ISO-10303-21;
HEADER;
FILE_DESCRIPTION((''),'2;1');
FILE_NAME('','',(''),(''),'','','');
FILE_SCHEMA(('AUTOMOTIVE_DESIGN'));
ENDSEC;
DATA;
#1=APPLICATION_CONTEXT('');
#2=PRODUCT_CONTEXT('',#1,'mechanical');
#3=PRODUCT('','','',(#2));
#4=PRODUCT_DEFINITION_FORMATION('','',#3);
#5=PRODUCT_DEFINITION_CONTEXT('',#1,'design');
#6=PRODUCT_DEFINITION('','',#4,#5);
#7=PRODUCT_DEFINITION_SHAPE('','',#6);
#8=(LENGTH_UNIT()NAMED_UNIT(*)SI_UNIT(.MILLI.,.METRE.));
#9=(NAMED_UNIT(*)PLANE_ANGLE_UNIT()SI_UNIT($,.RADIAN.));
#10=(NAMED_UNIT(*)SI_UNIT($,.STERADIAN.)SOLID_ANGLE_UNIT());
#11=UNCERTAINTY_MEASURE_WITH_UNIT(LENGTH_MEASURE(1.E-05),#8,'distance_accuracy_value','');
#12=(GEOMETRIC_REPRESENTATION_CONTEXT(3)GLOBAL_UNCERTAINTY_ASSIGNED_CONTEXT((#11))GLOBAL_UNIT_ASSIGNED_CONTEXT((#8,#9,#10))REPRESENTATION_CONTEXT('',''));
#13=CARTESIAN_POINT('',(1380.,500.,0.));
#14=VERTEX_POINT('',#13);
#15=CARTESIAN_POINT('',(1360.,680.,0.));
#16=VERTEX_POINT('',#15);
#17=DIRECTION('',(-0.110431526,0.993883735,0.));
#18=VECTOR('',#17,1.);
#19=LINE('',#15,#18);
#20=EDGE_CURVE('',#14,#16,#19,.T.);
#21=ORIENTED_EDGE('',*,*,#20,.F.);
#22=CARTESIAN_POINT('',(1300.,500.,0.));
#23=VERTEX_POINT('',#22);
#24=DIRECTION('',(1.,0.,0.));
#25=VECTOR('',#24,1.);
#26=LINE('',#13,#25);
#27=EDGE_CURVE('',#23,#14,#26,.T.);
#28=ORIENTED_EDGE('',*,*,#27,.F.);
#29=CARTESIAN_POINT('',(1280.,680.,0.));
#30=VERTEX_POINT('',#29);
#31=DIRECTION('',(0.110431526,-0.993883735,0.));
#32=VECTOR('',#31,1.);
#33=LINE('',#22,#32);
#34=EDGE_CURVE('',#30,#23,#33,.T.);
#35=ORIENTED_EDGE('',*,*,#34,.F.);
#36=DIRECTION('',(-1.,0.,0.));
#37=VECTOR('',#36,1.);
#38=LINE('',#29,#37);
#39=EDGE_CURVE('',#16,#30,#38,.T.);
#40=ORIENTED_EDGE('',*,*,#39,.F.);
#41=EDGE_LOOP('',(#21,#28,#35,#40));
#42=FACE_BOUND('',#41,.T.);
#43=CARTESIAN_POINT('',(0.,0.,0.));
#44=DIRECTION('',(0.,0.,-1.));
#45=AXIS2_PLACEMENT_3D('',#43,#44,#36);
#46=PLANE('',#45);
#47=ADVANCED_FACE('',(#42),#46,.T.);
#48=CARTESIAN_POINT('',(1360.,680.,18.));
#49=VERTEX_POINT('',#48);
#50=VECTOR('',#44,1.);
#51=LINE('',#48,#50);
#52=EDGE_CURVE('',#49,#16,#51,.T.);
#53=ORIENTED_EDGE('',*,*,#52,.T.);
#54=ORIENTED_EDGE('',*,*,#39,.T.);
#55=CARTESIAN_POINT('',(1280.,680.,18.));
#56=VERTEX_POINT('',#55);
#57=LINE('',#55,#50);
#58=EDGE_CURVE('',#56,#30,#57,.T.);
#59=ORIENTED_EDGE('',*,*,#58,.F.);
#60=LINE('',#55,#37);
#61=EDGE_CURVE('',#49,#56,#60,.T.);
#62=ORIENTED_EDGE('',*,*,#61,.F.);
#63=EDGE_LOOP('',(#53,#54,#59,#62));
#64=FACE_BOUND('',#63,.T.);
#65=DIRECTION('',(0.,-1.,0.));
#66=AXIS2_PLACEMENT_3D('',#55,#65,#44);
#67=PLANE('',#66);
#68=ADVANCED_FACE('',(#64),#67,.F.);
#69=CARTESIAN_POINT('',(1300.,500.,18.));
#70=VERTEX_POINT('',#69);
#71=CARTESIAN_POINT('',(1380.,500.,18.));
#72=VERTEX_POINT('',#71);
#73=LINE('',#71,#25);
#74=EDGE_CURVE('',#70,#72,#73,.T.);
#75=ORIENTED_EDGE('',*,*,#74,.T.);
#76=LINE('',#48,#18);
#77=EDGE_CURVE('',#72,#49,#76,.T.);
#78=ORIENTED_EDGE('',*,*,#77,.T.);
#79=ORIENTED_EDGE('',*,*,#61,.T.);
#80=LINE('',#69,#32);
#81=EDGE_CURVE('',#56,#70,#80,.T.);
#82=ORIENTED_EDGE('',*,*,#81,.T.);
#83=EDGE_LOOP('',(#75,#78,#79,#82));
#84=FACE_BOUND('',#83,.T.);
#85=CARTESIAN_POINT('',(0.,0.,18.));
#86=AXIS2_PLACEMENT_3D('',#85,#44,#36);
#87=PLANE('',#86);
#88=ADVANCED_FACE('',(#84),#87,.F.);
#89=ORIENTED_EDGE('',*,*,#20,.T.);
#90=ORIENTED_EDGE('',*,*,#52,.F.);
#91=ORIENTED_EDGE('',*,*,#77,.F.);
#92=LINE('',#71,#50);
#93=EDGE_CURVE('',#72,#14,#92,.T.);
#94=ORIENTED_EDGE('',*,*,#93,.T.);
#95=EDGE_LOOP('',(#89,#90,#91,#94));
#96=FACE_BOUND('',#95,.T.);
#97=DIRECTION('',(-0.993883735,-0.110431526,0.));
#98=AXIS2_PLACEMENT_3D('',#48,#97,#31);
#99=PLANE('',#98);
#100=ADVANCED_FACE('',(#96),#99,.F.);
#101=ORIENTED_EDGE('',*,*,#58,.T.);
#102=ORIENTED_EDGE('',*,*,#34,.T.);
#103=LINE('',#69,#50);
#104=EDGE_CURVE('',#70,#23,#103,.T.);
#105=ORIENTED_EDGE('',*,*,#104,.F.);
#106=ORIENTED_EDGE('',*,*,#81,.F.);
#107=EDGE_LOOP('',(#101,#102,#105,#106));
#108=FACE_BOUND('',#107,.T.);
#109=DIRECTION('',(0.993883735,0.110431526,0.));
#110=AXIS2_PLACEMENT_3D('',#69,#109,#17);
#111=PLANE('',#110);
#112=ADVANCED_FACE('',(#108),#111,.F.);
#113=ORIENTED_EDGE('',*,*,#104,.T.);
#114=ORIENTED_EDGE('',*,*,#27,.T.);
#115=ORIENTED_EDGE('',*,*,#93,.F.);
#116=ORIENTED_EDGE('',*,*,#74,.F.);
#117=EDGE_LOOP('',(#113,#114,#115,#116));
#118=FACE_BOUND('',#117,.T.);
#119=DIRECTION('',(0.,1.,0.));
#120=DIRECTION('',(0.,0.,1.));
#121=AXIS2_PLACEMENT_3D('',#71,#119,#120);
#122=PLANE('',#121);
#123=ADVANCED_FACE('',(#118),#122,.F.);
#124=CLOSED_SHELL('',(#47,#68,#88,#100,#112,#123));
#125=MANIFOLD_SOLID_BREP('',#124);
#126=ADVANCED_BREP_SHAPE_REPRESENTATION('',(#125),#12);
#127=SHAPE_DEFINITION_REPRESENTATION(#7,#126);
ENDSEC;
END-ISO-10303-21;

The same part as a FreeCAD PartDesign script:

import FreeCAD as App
import Part
import Sketcher

V = App.Vector
Q = App.Units.Quantity


def add_polygon(sketch, points):
    """Adds a closed chain of lines whose ends are joined by coincident constraints."""
    first, n = sketch.GeometryCount, len(points)
    for a, b in zip(points, points[1:] + points[:1]):
        sketch.addGeometry(Part.LineSegment(App.Vector(*a, 0), App.Vector(*b, 0)), False)
    for i in range(n):
        sketch.addConstraint(Sketcher.Constraint("Coincident", first + i, 2, first + (i + 1) % n, 1))

doc = App.newDocument("Part")
body = doc.addObject("PartDesign::Body", "Body")

# Sketch on XY plane
sketch1 = body.newObject("Sketcher::SketchObject", "Sketch")
sketch1.AttachmentSupport = (doc.getObject("XY_Plane"), [""])
sketch1.MapMode = "FlatFace"
add_polygon(sketch1, [(1280, 680), (1300, 500), (1380, 500), (1360, 680)])  # lines 0-3
sketch1.addConstraint([
    Sketcher.Constraint("Horizontal", 1),
    Sketcher.Constraint("Horizontal", 3),
    Sketcher.Constraint("Parallel", 0, 2),
    Sketcher.Constraint("DistanceX", 1, 1, 1, 2, Q("80 mm")),
    Sketcher.Constraint("DistanceX", -1, 1, 0, 2, Q("1300 mm")),
    Sketcher.Constraint("DistanceY", -1, 1, 0, 2, Q("500 mm")),
    Sketcher.Constraint("DistanceX", -1, 1, 2, 2, Q("1360 mm")),
    Sketcher.Constraint("DistanceY", -1, 1, 2, 2, Q("680 mm")),
])
pad1 = body.newObject("PartDesign::Pad", "Pad")
pad1.Profile = sketch1
pad1.Length = 18

doc.recompute()
